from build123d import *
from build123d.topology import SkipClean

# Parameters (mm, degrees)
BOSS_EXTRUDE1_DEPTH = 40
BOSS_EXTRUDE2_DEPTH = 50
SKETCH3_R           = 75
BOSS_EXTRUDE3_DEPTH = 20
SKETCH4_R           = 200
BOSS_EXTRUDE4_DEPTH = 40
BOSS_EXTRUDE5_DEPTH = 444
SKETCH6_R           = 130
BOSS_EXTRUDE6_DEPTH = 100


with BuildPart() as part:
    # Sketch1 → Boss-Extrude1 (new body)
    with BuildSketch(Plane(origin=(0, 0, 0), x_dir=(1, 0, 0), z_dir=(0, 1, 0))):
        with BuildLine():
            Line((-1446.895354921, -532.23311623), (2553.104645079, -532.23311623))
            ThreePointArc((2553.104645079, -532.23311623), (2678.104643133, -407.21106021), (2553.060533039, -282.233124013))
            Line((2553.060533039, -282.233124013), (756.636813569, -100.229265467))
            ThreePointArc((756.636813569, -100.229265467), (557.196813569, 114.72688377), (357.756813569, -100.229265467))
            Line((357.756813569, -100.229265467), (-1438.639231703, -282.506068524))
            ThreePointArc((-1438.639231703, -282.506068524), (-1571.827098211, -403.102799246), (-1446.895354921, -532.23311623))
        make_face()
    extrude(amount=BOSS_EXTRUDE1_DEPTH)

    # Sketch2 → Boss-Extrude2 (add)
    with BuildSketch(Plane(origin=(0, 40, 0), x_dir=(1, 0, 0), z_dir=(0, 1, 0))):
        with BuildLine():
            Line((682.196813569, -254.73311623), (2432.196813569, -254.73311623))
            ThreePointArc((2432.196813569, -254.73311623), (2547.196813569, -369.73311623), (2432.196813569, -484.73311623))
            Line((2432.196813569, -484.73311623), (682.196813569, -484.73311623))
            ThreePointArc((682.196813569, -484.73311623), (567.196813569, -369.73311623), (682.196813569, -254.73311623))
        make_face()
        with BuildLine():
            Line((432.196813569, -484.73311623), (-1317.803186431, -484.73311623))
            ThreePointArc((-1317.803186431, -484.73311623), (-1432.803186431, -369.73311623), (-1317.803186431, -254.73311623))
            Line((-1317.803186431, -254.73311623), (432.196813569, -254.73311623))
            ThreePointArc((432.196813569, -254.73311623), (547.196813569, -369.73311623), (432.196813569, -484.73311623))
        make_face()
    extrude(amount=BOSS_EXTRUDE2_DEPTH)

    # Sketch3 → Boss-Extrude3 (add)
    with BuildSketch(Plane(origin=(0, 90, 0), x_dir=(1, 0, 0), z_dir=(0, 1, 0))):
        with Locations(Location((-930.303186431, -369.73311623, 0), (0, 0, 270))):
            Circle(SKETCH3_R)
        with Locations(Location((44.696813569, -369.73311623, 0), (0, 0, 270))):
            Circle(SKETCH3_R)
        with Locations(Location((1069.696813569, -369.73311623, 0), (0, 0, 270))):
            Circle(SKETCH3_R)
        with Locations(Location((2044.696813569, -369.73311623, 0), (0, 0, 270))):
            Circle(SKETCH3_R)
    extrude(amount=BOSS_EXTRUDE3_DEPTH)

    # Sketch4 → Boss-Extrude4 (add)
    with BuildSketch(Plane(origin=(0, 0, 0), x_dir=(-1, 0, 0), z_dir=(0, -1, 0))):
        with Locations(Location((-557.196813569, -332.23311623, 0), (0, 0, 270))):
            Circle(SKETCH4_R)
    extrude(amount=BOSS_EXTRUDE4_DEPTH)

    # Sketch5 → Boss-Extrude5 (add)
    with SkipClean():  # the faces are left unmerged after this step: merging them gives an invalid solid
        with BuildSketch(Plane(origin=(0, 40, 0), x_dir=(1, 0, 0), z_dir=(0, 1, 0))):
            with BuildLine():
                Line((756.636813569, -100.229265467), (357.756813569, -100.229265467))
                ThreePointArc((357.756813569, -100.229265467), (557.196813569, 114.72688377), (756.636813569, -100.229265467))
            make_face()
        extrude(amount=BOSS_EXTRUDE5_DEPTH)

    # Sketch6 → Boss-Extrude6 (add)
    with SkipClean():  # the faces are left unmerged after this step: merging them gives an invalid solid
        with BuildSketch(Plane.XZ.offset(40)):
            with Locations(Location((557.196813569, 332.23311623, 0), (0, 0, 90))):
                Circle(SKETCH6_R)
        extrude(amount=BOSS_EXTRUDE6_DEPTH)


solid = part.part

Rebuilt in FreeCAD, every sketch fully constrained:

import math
import FreeCAD as App
import Part
import Sketcher

V = App.Vector
Q = App.Units.Quantity

doc = App.newDocument("Part")
body = doc.addObject("PartDesign::Body", "Body")

# Sketch on XZ plane
sketch1 = doc.addObject("Sketcher::SketchObject", "Sketch")
body.addObject(sketch1)
sketch1.AttachmentSupport = (doc.XZ_Plane, [""])
sketch1.MapMode = "FlatFace"
sketch1.addGeometry(Part.LineSegment(V(-1447, 532, 0), V(2553, 532, 0)), False)
sketch1.addGeometry(Part.ArcOfCircle(Part.Circle(V(2553, 407, 0), V(0, 0, 1), 125), math.radians(-90), math.radians(90)), False)
sketch1.addGeometry(Part.LineSegment(V(2553, 282, 0), V(757, 100, 0)), False)
sketch1.addGeometry(Part.ArcOfCircle(Part.Circle(V(557, 85, 0), V(0, 0, 1), 200), math.radians(176), math.radians(364)), False)
sketch1.addGeometry(Part.LineSegment(V(358, 100, 0), V(-1439, 283, 0)), False)
sketch1.addGeometry(Part.ArcOfCircle(Part.Circle(V(-1447, 407, 0), V(0, 0, 1), 125), math.radians(90), math.radians(274)), False)
sketch1.addConstraint(Sketcher.Constraint("Tangent", 0, 2, 1, 2))
sketch1.addConstraint(Sketcher.Constraint("Coincident", 1, 1, 2, 1))
sketch1.addConstraint(Sketcher.Constraint("Coincident", 2, 2, 3, 2))
sketch1.addConstraint(Sketcher.Constraint("Coincident", 3, 1, 4, 1))
sketch1.addConstraint(Sketcher.Constraint("Coincident", 4, 2, 5, 2))
sketch1.addConstraint(Sketcher.Constraint("Tangent", 5, 1, 0, 1))
sketch1.addConstraint(Sketcher.Constraint("Horizontal", 0))
sketch1.addConstraint(Sketcher.Constraint("Equal", 1, 5))
sketch1.addConstraint(Sketcher.Constraint("Horizontal", 2, 2, 3, 1))
sketch1.addConstraint(Sketcher.Constraint("Equal", 2, 4))
sketch1.addConstraint(Sketcher.Constraint("Radius", 1, Q("125 mm")))
sketch1.addConstraint(Sketcher.Constraint("Radius", 3, Q("200 mm")))
sketch1.addConstraint(Sketcher.Constraint("DistanceX", 0, 1, 0, 2, Q("4000 mm")))
sketch1.addConstraint(Sketcher.Constraint("Distance", 2, Q("1805.62 mm")))
sketch1.addConstraint(Sketcher.Constraint("DistanceY", 3, 3, 1, 3, Q("321.96 mm")))
sketch1.addConstraint(Sketcher.Constraint("DistanceX", 3, 3, 2, 2, Q("199.44 mm")))
sketch1.addConstraint(Sketcher.Constraint("DistanceX", 4, 2, -1, 1, Q("1438.639232 mm")))
sketch1.addConstraint(Sketcher.Constraint("DistanceY", -1, 1, 4, 2, Q("282.506069 mm")))
sketch1.addConstraint(Sketcher.Constraint("DistanceX", 3, 3, 1, 3, Q("1995.907832 mm")))
pad1 = doc.addObject("PartDesign::Pad", "Pad")
body.addObject(pad1)
pad1.Profile = sketch1
pad1.Length = 40
pad1.Reversed = True

# Sketch on XZ plane
sketch2 = doc.addObject("Sketcher::SketchObject", "Sketch001")
body.addObject(sketch2)
sketch2.AttachmentSupport = (doc.XZ_Plane, [""])
sketch2.MapMode = "FlatFace"
sketch2.AttachmentOffset = App.Placement(V(0, 0, -40), App.Rotation())
sketch2.addGeometry(Part.LineSegment(V(2432, 255, 0), V(682, 255, 0)), False)
sketch2.addGeometry(Part.ArcOfCircle(Part.Circle(V(682, 370, 0), V(0, 0, 1), 115), math.radians(90), math.radians(270)), False)
sketch2.addGeometry(Part.LineSegment(V(682, 485, 0), V(2432, 485, 0)), False)
sketch2.addGeometry(Part.ArcOfCircle(Part.Circle(V(2432, 370, 0), V(0, 0, 1), 115), math.radians(-90), math.radians(90)), False)
sketch2.addGeometry(Part.LineSegment(V(-1318, 485, 0), V(432, 485, 0)), False)
sketch2.addGeometry(Part.ArcOfCircle(Part.Circle(V(432, 370, 0), V(0, 0, 1), 115), math.radians(-90), math.radians(90)), False)
sketch2.addGeometry(Part.LineSegment(V(432, 255, 0), V(-1318, 255, 0)), False)
sketch2.addGeometry(Part.ArcOfCircle(Part.Circle(V(-1318, 370, 0), V(0, 0, 1), 115), math.radians(90), math.radians(270)), False)
sketch2.addConstraint(Sketcher.Constraint("Tangent", 0, 2, 1, 2))
sketch2.addConstraint(Sketcher.Constraint("Tangent", 1, 1, 2, 1))
sketch2.addConstraint(Sketcher.Constraint("Tangent", 2, 2, 3, 2))
sketch2.addConstraint(Sketcher.Constraint("Tangent", 3, 1, 0, 1))
sketch2.addConstraint(Sketcher.Constraint("Tangent", 4, 2, 5, 2))
sketch2.addConstraint(Sketcher.Constraint("Tangent", 5, 1, 6, 1))
sketch2.addConstraint(Sketcher.Constraint("Tangent", 6, 2, 7, 2))
sketch2.addConstraint(Sketcher.Constraint("Tangent", 7, 1, 4, 1))
sketch2.addConstraint(Sketcher.Constraint("Horizontal", 0))
sketch2.addConstraint(Sketcher.Constraint("Horizontal", 2))
sketch2.addConstraint(Sketcher.Constraint("Horizontal", 4))
sketch2.addConstraint(Sketcher.Constraint("Horizontal", 6))
sketch2.addConstraint(Sketcher.Constraint("Equal", 3, 5))
sketch2.addConstraint(Sketcher.Constraint("Horizontal", 3, 3, 5, 3))
sketch2.addConstraint(Sketcher.Constraint("Equal", 2, 4))
sketch2.addConstraint(Sketcher.Constraint("Radius", 1, Q("115 mm")))
sketch2.addConstraint(Sketcher.Constraint("DistanceX", 0, 2, 0, 1, Q("1750 mm")))
sketch2.addConstraint(Sketcher.Constraint("DistanceX", 5, 3, 1, 3, Q("250 mm")))
sketch2.addConstraint(Sketcher.Constraint("DistanceX", -1, 1, 1, 3, Q("682.196814 mm")))
sketch2.addConstraint(Sketcher.Constraint("DistanceY", -1, 1, 1, 3, Q("369.733116 mm")))
pad2 = doc.addObject("PartDesign::Pad", "Pad001")
body.addObject(pad2)
pad2.Profile = sketch2
pad2.Length = 50
pad2.Reversed = True

# Sketch on XZ plane
sketch3 = doc.addObject("Sketcher::SketchObject", "Sketch002")
body.addObject(sketch3)
sketch3.AttachmentSupport = (doc.XZ_Plane, [""])
sketch3.MapMode = "FlatFace"
sketch3.AttachmentOffset = App.Placement(V(0, 0, -90), App.Rotation())
sketch3.addGeometry(Part.Circle(V(-930, 370, 0), V(0, 0, 1), 75), False)
sketch3.addGeometry(Part.Circle(V(45, 370, 0), V(0, 0, 1), 75), False)
sketch3.addGeometry(Part.Circle(V(1070, 370, 0), V(0, 0, 1), 75), False)
sketch3.addGeometry(Part.Circle(V(2045, 370, 0), V(0, 0, 1), 75), False)
sketch3.addConstraint(Sketcher.Constraint("Equal", 0, 1))
sketch3.addConstraint(Sketcher.Constraint("Equal", 1, 2))
sketch3.addConstraint(Sketcher.Constraint("Equal", 2, 3))
sketch3.addConstraint(Sketcher.Constraint("Horizontal", 0, 3, 1, 3))
sketch3.addConstraint(Sketcher.Constraint("Horizontal", 1, 3, 2, 3))
sketch3.addConstraint(Sketcher.Constraint("Horizontal", 2, 3, 3, 3))
sketch3.addConstraint(Sketcher.Constraint("Diameter", 0, Q("150 mm")))
sketch3.addConstraint(Sketcher.Constraint("DistanceX", 0, 3, 1, 3, Q("975 mm")))
sketch3.addConstraint(Sketcher.Constraint("DistanceX", 1, 3, 2, 3, Q("1025 mm")))
sketch3.addConstraint(Sketcher.Constraint("DistanceX", 2, 3, 3, 3, Q("975 mm")))
sketch3.addConstraint(Sketcher.Constraint("DistanceX", 0, 3, -1, 1, Q("930.303186 mm")))
sketch3.addConstraint(Sketcher.Constraint("DistanceY", -1, 1, 0, 3, Q("369.733116 mm")))
pad3 = doc.addObject("PartDesign::Pad", "Pad002")
body.addObject(pad3)
pad3.Profile = sketch3
pad3.Length = 20
pad3.Reversed = True

# Sketch on XZ plane
sketch4 = doc.addObject("Sketcher::SketchObject", "Sketch003")
body.addObject(sketch4)
sketch4.AttachmentSupport = (doc.XZ_Plane, [""])
sketch4.MapMode = "FlatFace"
sketch4.addGeometry(Part.Circle(V(557, 332, 0), V(0, 0, 1), 200), False)
sketch4.addConstraint(Sketcher.Constraint("Diameter", 0, Q("400 mm")))
sketch4.addConstraint(Sketcher.Constraint("DistanceX", -1, 1, 0, 3, Q("557.196814 mm")))
sketch4.addConstraint(Sketcher.Constraint("DistanceY", -1, 1, 0, 3, Q("332.233116 mm")))
pad4 = doc.addObject("PartDesign::Pad", "Pad003")
body.addObject(pad4)
pad4.Profile = sketch4
pad4.Length = 40

# Sketch on XZ plane
sketch5 = doc.addObject("Sketcher::SketchObject", "Sketch004")
body.addObject(sketch5)
sketch5.AttachmentSupport = (doc.XZ_Plane, [""])
sketch5.MapMode = "FlatFace"
sketch5.AttachmentOffset = App.Placement(V(0, 0, -40), App.Rotation())
sketch5.addGeometry(Part.LineSegment(V(358, 100, 0), V(757, 100, 0)), False)
sketch5.addGeometry(Part.ArcOfCircle(Part.Circle(V(557, 85, 0), V(0, 0, 1), 200), math.radians(176), math.radians(364)), False)
sketch5.addConstraint(Sketcher.Constraint("Coincident", 0, 1, 1, 1))
sketch5.addConstraint(Sketcher.Constraint("Coincident", 1, 2, 0, 2))
sketch5.addConstraint(Sketcher.Constraint("Horizontal", 0))
sketch5.addConstraint(Sketcher.Constraint("Radius", 1, Q("200 mm")))
sketch5.addConstraint(Sketcher.Constraint("DistanceX", 0, 1, 0, 2, Q("398.88 mm")))
sketch5.addConstraint(Sketcher.Constraint("DistanceX", -1, 1, 1, 3, Q("557.196814 mm")))
sketch5.addConstraint(Sketcher.Constraint("DistanceY", -1, 1, 1, 3, Q("85.273116 mm")))
pad5 = doc.addObject("PartDesign::Pad", "Pad004")
body.addObject(pad5)
pad5.Profile = sketch5
pad5.Length = 444
pad5.Reversed = True

# Sketch on XZ plane
sketch6 = doc.addObject("Sketcher::SketchObject", "Sketch005")
body.addObject(sketch6)
sketch6.AttachmentSupport = (doc.XZ_Plane, [""])
sketch6.MapMode = "FlatFace"
sketch6.AttachmentOffset = App.Placement(V(0, 0, 40), App.Rotation())
sketch6.addGeometry(Part.Circle(V(557, 332, 0), V(0, 0, 1), 130), False)
sketch6.addConstraint(Sketcher.Constraint("Diameter", 0, Q("260 mm")))
sketch6.addConstraint(Sketcher.Constraint("DistanceX", -1, 1, 0, 3, Q("557.196814 mm")))
sketch6.addConstraint(Sketcher.Constraint("DistanceY", -1, 1, 0, 3, Q("332.233116 mm")))
pad6 = doc.addObject("PartDesign::Pad", "Pad005")
body.addObject(pad6)
pad6.Profile = sketch6
pad6.Length = 100

doc.recompute()
